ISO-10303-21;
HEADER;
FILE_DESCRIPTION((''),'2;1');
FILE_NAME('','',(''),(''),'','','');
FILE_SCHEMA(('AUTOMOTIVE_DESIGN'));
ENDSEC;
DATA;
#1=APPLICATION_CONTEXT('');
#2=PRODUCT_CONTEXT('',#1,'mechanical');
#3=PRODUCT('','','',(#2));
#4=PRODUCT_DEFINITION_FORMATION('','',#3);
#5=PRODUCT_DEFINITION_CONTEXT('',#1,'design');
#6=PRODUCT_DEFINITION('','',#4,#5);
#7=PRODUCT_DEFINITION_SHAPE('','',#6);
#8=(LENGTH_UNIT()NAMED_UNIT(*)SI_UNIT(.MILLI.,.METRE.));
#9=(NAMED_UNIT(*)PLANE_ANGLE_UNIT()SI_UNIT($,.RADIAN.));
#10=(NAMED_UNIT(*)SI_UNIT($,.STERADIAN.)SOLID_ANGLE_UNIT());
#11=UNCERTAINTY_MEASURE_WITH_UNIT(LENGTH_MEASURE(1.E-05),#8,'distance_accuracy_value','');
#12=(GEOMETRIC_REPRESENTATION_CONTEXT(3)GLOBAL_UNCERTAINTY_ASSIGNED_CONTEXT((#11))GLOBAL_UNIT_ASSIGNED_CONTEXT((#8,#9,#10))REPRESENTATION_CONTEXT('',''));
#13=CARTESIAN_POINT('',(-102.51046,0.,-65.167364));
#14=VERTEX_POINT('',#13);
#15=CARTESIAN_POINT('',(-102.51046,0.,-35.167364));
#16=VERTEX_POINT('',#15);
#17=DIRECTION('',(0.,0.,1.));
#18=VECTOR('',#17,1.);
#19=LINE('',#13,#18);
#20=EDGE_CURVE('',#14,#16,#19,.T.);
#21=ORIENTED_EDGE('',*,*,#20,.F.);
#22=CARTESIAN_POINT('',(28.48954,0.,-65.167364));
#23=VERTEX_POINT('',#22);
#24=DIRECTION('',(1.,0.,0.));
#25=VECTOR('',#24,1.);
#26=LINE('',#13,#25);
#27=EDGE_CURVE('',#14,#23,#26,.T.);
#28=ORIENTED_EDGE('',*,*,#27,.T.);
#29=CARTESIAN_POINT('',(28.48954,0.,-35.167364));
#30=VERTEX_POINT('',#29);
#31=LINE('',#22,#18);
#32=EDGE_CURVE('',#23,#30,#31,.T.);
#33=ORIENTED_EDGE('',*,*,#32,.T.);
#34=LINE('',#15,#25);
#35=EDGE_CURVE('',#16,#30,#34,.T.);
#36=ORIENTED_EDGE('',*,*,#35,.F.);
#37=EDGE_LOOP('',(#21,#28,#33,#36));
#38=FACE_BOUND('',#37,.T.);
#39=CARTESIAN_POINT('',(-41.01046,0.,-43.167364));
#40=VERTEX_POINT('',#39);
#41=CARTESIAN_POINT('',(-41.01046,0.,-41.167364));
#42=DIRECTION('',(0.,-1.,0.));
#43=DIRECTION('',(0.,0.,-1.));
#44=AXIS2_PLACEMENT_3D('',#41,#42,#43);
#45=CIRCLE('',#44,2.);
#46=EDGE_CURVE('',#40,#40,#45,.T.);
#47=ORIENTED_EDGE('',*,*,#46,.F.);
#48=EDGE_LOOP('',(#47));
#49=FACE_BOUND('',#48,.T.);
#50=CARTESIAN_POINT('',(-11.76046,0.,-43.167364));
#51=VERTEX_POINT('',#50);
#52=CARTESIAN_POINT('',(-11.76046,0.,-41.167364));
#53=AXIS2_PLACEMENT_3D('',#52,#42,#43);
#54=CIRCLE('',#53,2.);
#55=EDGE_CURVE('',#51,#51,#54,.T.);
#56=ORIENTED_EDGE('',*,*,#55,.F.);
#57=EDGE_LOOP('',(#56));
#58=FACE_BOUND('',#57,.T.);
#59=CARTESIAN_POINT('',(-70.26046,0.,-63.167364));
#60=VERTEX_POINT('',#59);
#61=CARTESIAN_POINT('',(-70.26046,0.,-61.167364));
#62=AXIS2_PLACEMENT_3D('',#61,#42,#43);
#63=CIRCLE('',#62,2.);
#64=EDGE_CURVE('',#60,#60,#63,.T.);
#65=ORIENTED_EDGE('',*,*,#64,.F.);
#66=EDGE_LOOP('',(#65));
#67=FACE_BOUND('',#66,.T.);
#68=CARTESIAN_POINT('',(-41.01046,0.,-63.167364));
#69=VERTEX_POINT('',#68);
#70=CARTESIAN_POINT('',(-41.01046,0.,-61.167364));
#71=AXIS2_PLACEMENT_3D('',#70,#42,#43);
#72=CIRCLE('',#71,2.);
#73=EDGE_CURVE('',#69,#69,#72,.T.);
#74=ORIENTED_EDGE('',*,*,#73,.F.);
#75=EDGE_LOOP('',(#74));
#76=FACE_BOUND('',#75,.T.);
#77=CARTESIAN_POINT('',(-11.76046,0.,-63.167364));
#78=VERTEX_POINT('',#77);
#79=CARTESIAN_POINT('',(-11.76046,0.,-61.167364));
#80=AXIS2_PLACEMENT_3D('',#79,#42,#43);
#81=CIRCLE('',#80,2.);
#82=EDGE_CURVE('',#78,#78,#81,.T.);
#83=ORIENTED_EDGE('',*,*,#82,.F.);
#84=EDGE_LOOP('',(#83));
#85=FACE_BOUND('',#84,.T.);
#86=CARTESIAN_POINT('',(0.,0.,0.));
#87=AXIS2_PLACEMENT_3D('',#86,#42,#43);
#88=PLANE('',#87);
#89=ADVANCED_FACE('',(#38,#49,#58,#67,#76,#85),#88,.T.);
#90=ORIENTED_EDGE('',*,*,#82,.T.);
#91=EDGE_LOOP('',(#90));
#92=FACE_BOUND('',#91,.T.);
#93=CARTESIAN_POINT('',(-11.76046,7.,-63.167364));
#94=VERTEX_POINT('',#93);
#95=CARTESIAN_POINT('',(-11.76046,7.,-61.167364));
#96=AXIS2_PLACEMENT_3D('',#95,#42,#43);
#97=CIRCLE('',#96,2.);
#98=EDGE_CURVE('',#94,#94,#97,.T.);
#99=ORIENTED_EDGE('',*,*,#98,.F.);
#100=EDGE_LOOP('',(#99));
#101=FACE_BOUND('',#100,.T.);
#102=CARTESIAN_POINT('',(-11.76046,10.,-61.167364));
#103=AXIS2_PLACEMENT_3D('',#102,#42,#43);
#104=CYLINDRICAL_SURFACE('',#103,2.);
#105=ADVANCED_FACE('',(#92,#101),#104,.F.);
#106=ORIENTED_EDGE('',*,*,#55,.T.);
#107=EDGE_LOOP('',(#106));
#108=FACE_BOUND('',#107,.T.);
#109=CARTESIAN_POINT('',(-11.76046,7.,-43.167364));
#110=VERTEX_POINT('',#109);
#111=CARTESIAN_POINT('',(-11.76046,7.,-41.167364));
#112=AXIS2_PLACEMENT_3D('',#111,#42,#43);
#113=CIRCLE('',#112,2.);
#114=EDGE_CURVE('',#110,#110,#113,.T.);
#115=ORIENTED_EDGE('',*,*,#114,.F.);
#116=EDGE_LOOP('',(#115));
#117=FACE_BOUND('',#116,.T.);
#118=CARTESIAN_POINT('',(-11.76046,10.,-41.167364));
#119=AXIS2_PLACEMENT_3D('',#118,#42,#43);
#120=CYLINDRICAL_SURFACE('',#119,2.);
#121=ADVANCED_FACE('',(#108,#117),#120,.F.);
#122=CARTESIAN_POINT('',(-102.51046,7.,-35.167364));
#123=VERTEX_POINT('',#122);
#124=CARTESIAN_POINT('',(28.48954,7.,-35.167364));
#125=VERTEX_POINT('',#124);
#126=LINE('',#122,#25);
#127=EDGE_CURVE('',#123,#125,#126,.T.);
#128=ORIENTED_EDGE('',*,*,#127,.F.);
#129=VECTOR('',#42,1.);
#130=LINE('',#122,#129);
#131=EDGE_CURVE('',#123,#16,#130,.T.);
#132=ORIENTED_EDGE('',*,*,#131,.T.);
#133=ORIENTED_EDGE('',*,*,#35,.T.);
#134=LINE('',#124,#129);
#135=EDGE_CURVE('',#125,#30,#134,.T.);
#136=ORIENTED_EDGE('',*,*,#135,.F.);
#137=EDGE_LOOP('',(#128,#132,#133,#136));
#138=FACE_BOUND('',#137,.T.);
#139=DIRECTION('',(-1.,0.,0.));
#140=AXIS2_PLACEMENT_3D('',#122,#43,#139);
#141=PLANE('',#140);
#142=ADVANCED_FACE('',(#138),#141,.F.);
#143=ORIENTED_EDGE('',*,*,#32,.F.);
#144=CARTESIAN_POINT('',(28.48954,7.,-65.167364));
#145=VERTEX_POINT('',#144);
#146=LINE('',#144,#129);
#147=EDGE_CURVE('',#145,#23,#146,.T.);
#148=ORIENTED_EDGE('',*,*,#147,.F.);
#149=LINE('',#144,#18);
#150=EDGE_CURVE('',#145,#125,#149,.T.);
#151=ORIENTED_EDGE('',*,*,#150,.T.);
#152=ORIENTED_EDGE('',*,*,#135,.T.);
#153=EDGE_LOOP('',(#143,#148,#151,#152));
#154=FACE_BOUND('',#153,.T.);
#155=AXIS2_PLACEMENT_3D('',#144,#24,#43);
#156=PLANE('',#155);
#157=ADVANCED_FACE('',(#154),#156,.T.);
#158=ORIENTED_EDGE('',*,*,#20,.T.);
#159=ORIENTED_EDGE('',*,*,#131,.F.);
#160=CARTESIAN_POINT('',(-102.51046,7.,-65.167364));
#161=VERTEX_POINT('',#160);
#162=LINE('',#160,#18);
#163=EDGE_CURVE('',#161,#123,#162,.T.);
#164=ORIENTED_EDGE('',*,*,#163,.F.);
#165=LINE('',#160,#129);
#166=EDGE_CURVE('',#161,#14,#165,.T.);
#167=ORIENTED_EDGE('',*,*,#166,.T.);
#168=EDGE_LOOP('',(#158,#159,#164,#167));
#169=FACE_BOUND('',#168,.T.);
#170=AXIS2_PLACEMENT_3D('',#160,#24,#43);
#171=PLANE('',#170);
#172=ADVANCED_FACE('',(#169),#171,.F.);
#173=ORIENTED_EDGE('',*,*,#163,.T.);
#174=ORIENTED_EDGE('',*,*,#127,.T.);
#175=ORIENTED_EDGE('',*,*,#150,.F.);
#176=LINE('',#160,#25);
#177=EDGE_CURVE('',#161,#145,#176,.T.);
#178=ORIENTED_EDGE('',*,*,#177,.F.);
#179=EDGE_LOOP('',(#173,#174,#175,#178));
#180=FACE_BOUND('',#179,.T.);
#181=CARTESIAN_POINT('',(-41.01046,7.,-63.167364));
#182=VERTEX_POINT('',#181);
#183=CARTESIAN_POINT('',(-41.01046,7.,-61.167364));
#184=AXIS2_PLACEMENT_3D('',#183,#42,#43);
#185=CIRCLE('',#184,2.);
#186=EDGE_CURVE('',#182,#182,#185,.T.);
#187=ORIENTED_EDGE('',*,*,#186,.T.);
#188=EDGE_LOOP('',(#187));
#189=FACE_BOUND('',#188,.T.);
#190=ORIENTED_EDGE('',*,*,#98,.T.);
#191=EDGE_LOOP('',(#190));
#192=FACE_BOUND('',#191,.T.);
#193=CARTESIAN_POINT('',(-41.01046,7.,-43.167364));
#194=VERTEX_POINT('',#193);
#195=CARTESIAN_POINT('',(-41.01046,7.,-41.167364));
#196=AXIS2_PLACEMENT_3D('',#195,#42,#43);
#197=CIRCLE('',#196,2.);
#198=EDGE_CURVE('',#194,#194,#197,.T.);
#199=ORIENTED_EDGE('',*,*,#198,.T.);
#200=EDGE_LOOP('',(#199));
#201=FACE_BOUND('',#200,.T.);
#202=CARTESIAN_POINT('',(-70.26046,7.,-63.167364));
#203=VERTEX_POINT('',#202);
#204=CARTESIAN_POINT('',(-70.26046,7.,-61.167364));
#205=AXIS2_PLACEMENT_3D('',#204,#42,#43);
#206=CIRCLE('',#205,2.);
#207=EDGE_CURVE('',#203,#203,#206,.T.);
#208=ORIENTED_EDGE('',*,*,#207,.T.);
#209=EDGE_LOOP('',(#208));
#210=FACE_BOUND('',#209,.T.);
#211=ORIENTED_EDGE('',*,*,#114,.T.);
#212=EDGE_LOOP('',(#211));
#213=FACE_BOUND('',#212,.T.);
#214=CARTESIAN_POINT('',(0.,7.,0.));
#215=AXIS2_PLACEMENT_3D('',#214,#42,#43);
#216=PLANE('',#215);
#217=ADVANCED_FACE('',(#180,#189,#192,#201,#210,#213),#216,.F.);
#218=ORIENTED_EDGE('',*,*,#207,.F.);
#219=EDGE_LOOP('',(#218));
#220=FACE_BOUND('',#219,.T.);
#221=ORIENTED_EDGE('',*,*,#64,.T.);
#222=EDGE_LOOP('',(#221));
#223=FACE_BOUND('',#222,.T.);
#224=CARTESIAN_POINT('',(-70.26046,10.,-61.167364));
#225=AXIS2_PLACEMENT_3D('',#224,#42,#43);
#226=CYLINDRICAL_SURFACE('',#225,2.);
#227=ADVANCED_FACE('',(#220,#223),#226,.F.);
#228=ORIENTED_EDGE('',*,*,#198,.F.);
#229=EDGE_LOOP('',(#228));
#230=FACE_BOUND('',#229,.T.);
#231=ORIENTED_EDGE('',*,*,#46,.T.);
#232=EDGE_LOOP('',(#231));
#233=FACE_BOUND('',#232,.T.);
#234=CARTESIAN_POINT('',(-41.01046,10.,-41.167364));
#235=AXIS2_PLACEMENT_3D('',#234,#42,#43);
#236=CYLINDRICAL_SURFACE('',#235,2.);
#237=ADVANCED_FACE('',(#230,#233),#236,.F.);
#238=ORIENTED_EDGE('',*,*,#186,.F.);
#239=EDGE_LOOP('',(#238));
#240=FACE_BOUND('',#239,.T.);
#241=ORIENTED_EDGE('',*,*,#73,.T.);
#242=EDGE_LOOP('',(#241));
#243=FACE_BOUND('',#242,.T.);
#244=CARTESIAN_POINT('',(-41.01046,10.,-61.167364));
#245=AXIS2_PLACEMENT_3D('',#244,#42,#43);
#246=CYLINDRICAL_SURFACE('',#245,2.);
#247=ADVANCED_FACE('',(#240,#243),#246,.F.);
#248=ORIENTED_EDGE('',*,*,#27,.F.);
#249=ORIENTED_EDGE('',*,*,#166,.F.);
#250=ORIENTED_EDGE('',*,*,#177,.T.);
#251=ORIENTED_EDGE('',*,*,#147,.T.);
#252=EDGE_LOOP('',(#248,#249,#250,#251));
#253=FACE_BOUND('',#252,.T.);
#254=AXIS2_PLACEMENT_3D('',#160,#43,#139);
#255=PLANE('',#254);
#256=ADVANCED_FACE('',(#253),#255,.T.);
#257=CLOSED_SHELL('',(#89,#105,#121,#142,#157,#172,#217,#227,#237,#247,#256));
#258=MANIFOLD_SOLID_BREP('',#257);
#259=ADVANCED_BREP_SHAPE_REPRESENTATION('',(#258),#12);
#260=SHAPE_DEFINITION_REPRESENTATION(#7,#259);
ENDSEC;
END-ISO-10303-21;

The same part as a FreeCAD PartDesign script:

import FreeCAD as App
import Part
import Sketcher
Q = App.Units.Quantity


def add_polygon(sketch, points):
    """Adds a closed chain of lines whose ends are joined by coincident constraints."""
    first, n = sketch.GeometryCount, len(points)
    for a, b in zip(points, points[1:] + points[:1]):
        sketch.addGeometry(Part.LineSegment(App.Vector(*a, 0), App.Vector(*b, 0)), False)
    for i in range(n):
        sketch.addConstraint(Sketcher.Constraint("Coincident", first + i, 2, first + (i + 1) % n, 1))

doc = App.newDocument("Part")
params = doc.addObject("Spreadsheet::Sheet", "Params")
for row, (alias, value) in enumerate([
    ("sketch1_width", "131 mm"),
    ("sketch1_height", "30 mm"),
    ("pad1_length", "7 mm"),
    ("sketch2_diameter", "4 mm"),
    ("pocket1_length", "10 mm"),
], start=1):
    params.set(f"A{row}", alias)
    params.set(f"B{row}", "=" + value)
    params.setAlias(f"B{row}", alias)

body = doc.addObject("PartDesign::Body", "Body")

# Sketch on XZ plane
sketch1 = doc.addObject("Sketcher::SketchObject", "Sketch")
body.addObject(sketch1)
sketch1.AttachmentSupport = (doc.XZ_Plane, [""])
sketch1.MapMode = "FlatFace"
add_polygon(sketch1, [(-102.51046, -65.167364), (-102.51046, -35.167364), (28.48954, -35.167364), (28.48954, -65.167364)])  # lines 0-3
sketch1.addConstraint([
    Sketcher.Constraint("Vertical", 0),
    Sketcher.Constraint("Horizontal", 1),
    Sketcher.Constraint("Vertical", 2),
    Sketcher.Constraint("Horizontal", 3),
    Sketcher.Constraint("DistanceX", 1, 1, 1, 2, Q("131 mm")),
    Sketcher.Constraint("DistanceY", 0, 1, 0, 2, Q("30 mm")),
    Sketcher.Constraint("DistanceX", 0, 2, -1, 1, Q("102.51046 mm")),
    Sketcher.Constraint("DistanceY", 0, 2, -1, 1, Q("35.167364 mm")),
])
sketch1.setExpression("Constraints[8]", "Params.sketch1_width")
sketch1.setExpression("Constraints[9]", "Params.sketch1_height")
pad1 = doc.addObject("PartDesign::Pad", "Pad")
body.addObject(pad1)
pad1.Profile = sketch1
pad1.setExpression("Length", "Params.pad1_length")
pad1.Reversed = True

# Sketch on XZ plane
sketch2 = doc.addObject("Sketcher::SketchObject", "Sketch001")
body.addObject(sketch2)
sketch2.AttachmentSupport = (doc.XZ_Plane, [""])
sketch2.MapMode = "FlatFace"
sketch2.addGeometry([
    Part.Circle(App.Vector(-70.26046, -61.167364, 0), App.Vector(0, 0, 1), 2),  # 0
    Part.Circle(App.Vector(-41.01046, -61.167364, 0), App.Vector(0, 0, 1), 2),  # 1
    Part.Circle(App.Vector(-11.76046, -61.167364, 0), App.Vector(0, 0, 1), 2),  # 2
    Part.Circle(App.Vector(-11.76046, -41.167364, 0), App.Vector(0, 0, 1), 2),  # 3
    Part.Circle(App.Vector(-41.01046, -41.167364, 0), App.Vector(0, 0, 1), 2),  # 4
], False)
sketch2.addConstraint([
    Sketcher.Constraint("Equal", 0, 1),
    Sketcher.Constraint("Equal", 1, 2),
    Sketcher.Constraint("Equal", 2, 3),
    Sketcher.Constraint("Equal", 3, 4),
    Sketcher.Constraint("Horizontal", 0, 3, 1, 3),
    Sketcher.Constraint("Horizontal", 1, 3, 2, 3),
    Sketcher.Constraint("Horizontal", 3, 3, 4, 3),
    Sketcher.Constraint("Vertical", 2, 3, 3, 3),
    Sketcher.Constraint("Vertical", 1, 3, 4, 3),
    Sketcher.Constraint("Diameter", 0, Q("4 mm")),
    Sketcher.Constraint("DistanceY", 2, 3, 3, 3, Q("20 mm")),
    Sketcher.Constraint("DistanceX", 0, 3, 2, 3, Q("58.5 mm")),
    Sketcher.Constraint("DistanceX", 0, 3, 1, 3, Q("29.25 mm")),
    Sketcher.Constraint("DistanceX", 0, 3, -1, 1, Q("70.26046 mm")),
    Sketcher.Constraint("DistanceY", 0, 3, -1, 1, Q("61.167364 mm")),
])
sketch2.setExpression("Constraints[9]", "Params.sketch2_diameter")
pocket1 = doc.addObject("PartDesign::Pocket", "Pocket")
body.addObject(pocket1)
pocket1.Profile = sketch2
pocket1.setExpression("Length", "Params.pocket1_length")

doc.recompute()
